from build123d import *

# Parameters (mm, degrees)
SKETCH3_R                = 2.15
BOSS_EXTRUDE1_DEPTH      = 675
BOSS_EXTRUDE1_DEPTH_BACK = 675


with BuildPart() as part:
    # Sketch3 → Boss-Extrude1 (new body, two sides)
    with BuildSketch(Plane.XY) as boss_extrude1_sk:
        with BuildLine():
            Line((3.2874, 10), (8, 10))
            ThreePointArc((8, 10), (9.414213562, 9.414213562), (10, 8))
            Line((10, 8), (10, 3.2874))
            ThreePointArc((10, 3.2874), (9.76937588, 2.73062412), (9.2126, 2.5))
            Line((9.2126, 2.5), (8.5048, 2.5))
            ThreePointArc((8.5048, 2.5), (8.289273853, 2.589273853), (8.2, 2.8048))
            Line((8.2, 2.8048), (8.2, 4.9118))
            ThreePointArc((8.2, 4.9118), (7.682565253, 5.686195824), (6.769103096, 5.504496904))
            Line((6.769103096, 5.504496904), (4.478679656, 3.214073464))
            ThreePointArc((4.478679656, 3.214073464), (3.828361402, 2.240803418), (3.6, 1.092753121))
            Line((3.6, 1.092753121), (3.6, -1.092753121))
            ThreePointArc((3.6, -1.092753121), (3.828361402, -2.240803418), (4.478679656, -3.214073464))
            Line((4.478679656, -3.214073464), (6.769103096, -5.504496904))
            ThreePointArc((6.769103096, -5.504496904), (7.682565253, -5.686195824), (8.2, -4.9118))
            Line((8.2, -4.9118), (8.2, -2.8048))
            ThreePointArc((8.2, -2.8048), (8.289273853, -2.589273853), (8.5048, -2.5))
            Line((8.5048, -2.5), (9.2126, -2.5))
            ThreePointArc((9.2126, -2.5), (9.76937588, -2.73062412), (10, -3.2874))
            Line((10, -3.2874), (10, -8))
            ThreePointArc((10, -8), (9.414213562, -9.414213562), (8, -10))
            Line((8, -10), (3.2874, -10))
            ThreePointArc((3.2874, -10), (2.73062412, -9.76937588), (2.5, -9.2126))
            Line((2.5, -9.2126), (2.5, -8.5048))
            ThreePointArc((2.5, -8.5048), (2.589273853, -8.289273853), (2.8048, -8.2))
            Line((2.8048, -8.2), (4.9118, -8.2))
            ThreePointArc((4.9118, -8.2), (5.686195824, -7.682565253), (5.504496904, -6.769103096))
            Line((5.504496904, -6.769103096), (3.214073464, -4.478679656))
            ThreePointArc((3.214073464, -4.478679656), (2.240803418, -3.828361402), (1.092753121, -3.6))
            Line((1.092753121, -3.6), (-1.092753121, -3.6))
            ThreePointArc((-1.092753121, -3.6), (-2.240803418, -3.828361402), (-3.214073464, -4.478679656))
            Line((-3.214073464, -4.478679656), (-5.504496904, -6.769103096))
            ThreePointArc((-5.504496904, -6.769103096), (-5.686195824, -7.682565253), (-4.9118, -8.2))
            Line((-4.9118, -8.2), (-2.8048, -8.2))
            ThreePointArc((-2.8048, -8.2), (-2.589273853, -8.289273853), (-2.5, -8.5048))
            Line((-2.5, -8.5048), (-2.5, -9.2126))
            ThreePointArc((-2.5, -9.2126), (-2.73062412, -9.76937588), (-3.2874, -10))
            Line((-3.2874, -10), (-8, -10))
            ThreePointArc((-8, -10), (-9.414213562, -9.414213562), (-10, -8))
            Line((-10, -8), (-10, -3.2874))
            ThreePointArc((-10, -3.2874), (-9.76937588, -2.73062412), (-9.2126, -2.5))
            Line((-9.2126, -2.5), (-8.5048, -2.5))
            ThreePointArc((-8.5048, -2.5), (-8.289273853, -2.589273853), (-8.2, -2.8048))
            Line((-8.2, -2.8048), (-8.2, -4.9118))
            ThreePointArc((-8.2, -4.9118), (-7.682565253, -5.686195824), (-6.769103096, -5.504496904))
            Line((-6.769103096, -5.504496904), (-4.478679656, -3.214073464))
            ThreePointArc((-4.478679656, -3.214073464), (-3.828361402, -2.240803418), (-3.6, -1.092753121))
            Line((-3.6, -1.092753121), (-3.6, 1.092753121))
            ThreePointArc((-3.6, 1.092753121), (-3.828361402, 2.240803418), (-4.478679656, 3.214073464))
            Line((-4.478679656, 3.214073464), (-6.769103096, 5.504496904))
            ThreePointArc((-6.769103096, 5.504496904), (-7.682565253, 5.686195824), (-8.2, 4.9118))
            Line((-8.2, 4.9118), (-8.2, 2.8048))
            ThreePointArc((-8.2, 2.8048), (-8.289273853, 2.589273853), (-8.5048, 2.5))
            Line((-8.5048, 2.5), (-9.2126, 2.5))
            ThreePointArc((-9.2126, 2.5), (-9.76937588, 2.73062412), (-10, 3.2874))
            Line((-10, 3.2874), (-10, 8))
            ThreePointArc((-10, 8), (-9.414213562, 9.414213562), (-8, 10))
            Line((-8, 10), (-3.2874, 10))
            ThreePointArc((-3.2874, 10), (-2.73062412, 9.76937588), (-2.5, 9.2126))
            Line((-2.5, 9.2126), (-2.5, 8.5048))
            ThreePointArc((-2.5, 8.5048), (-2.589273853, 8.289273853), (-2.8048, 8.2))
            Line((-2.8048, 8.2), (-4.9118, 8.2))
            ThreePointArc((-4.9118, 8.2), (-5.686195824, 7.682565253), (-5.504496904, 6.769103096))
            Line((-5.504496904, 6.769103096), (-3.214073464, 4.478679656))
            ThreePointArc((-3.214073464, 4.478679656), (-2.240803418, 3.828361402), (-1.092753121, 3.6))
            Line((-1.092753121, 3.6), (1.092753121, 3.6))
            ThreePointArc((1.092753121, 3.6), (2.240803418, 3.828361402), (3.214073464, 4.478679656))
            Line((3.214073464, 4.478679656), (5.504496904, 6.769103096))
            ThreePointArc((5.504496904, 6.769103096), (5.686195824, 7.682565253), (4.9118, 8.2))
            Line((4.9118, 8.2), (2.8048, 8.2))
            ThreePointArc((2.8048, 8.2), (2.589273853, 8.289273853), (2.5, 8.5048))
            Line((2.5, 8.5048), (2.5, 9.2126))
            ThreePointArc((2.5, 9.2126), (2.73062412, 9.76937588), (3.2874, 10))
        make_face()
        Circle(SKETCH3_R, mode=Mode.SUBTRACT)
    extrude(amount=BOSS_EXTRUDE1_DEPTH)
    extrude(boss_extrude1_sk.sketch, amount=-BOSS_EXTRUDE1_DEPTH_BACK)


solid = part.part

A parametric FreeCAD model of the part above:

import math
import FreeCAD as App
import Part
import Sketcher
from FreeCAD import Vector
Q = App.Units.Quantity

doc = App.newDocument("Part")
params = doc.addObject("Spreadsheet::Sheet", "Params")
for row, (alias, value) in enumerate([
    ("sketch1_radius", "3 mm"),
    ("sketch1_radius2", "2 mm"),
    ("sketch1_diameter", "4.3 mm"),
    ("pad1_length", "675 mm"),
    ("pad1_length2", "675 mm"),
], start=1):
    params.set(f"A{row}", alias)
    params.set(f"B{row}", "=" + value)
    params.setAlias(f"B{row}", alias)

body = doc.addObject("PartDesign::Body", "Body")

# Sketch on XY plane
sketch1 = body.newObject("Sketcher::SketchObject", "Sketch")
sketch1.AttachmentSupport = (doc.getObject("XY_Plane"), [""])
sketch1.MapMode = "FlatFace"
sketch1.addGeometry([
    Part.LineSegment(Vector(8, 10, 0), Vector(3.2874, 10, 0)),  # 0
    Part.ArcOfCircle(Part.Circle(Vector(3.2874, 9.2126, 0), Vector(0, 0, 1), 0.7874), math.radians(90), math.radians(180)),  # 1
    Part.LineSegment(Vector(2.5, 9.2126, 0), Vector(2.5, 8.5048, 0)),  # 2
    Part.ArcOfCircle(Part.Circle(Vector(2.8048, 8.5048, 0), Vector(0, 0, 1), 0.3048), math.radians(180), math.radians(270)),  # 3
    Part.LineSegment(Vector(2.8048, 8.2, 0), Vector(4.9118, 8.2, 0)),  # 4
    Part.ArcOfCircle(Part.Circle(Vector(4.9118, 7.3618, 0), Vector(0, 0, 1), 0.8382), math.radians(-45), math.radians(90)),  # 5
    Part.LineSegment(Vector(5.504497, 6.769103, 0), Vector(3.214073, 4.47868, 0)),  # 6
    Part.ArcOfCircle(Part.Circle(Vector(1.092753, 6.6, 0), Vector(0, 0, 1), 3), math.radians(-90), math.radians(-45)),  # 7
    Part.LineSegment(Vector(1.092753, 3.6, 0), Vector(-1.092753, 3.6, 0)),  # 8
    Part.ArcOfCircle(Part.Circle(Vector(-1.092753, 6.6, 0), Vector(0, 0, 1), 3), math.radians(-135), math.radians(-90)),  # 9
    Part.LineSegment(Vector(-3.214073, 4.47868, 0), Vector(-5.504497, 6.769103, 0)),  # 10
    Part.ArcOfCircle(Part.Circle(Vector(-4.9118, 7.3618, 0), Vector(0, 0, 1), 0.8382), math.radians(90), math.radians(225)),  # 11
    Part.LineSegment(Vector(-4.9118, 8.2, 0), Vector(-2.8048, 8.2, 0)),  # 12
    Part.ArcOfCircle(Part.Circle(Vector(-2.8048, 8.5048, 0), Vector(0, 0, 1), 0.3048), math.radians(-90), math.radians(0)),  # 13
    Part.LineSegment(Vector(-2.5, 8.5048, 0), Vector(-2.5, 9.2126, 0)),  # 14
    Part.ArcOfCircle(Part.Circle(Vector(-3.2874, 9.2126, 0), Vector(0, 0, 1), 0.7874), math.radians(0), math.radians(90)),  # 15
    Part.LineSegment(Vector(-3.2874, 10, 0), Vector(-8, 10, 0)),  # 16
    Part.ArcOfCircle(Part.Circle(Vector(-8, 8, 0), Vector(0, 0, 1), 2), math.radians(90), math.radians(180)),  # 17
    Part.LineSegment(Vector(-10, 8, 0), Vector(-10, 3.2874, 0)),  # 18
    Part.ArcOfCircle(Part.Circle(Vector(-9.2126, 3.2874, 0), Vector(0, 0, 1), 0.7874), math.radians(180), math.radians(270)),  # 19
    Part.LineSegment(Vector(-9.2126, 2.5, 0), Vector(-8.5048, 2.5, 0)),  # 20
    Part.ArcOfCircle(Part.Circle(Vector(-8.5048, 2.8048, 0), Vector(0, 0, 1), 0.3048), math.radians(-90), math.radians(0)),  # 21
    Part.LineSegment(Vector(-8.2, 2.8048, 0), Vector(-8.2, 4.9118, 0)),  # 22
    Part.ArcOfCircle(Part.Circle(Vector(-7.3618, 4.9118, 0), Vector(0, 0, 1), 0.8382), math.radians(45), math.radians(180)),  # 23
    Part.LineSegment(Vector(-6.769103, 5.504497, 0), Vector(-4.47868, 3.214073, 0)),  # 24
    Part.ArcOfCircle(Part.Circle(Vector(-6.6, 1.092753, 0), Vector(0, 0, 1), 3), math.radians(0), math.radians(45)),  # 25
    Part.LineSegment(Vector(-3.6, 1.092753, 0), Vector(-3.6, -1.092753, 0)),  # 26
    Part.ArcOfCircle(Part.Circle(Vector(-6.6, -1.092753, 0), Vector(0, 0, 1), 3), math.radians(-45), math.radians(0)),  # 27
    Part.LineSegment(Vector(-4.47868, -3.214073, 0), Vector(-6.769103, -5.504497, 0)),  # 28
    Part.ArcOfCircle(Part.Circle(Vector(-7.3618, -4.9118, 0), Vector(0, 0, 1), 0.8382), math.radians(180), math.radians(315)),  # 29
    Part.LineSegment(Vector(-8.2, -4.9118, 0), Vector(-8.2, -2.8048, 0)),  # 30
    Part.ArcOfCircle(Part.Circle(Vector(-8.5048, -2.8048, 0), Vector(0, 0, 1), 0.3048), math.radians(0), math.radians(90)),  # 31
    Part.LineSegment(Vector(-8.5048, -2.5, 0), Vector(-9.2126, -2.5, 0)),  # 32
    Part.ArcOfCircle(Part.Circle(Vector(-9.2126, -3.2874, 0), Vector(0, 0, 1), 0.7874), math.radians(90), math.radians(180)),  # 33
    Part.LineSegment(Vector(-10, -3.2874, 0), Vector(-10, -8, 0)),  # 34
    Part.ArcOfCircle(Part.Circle(Vector(-8, -8, 0), Vector(0, 0, 1), 2), math.radians(-180), math.radians(-90)),  # 35
    Part.LineSegment(Vector(-8, -10, 0), Vector(-3.2874, -10, 0)),  # 36
    Part.ArcOfCircle(Part.Circle(Vector(-3.2874, -9.2126, 0), Vector(0, 0, 1), 0.7874), math.radians(-90), math.radians(0)),  # 37
    Part.LineSegment(Vector(-2.5, -9.2126, 0), Vector(-2.5, -8.5048, 0)),  # 38
    Part.ArcOfCircle(Part.Circle(Vector(-2.8048, -8.5048, 0), Vector(0, 0, 1), 0.3048), math.radians(0), math.radians(90)),  # 39
    Part.LineSegment(Vector(-2.8048, -8.2, 0), Vector(-4.9118, -8.2, 0)),  # 40
    Part.ArcOfCircle(Part.Circle(Vector(-4.9118, -7.3618, 0), Vector(0, 0, 1), 0.8382), math.radians(135), math.radians(270)),  # 41
    Part.LineSegment(Vector(-5.504497, -6.769103, 0), Vector(-3.214073, -4.47868, 0)),  # 42
    Part.ArcOfCircle(Part.Circle(Vector(-1.092753, -6.6, 0), Vector(0, 0, 1), 3), math.radians(90), math.radians(135)),  # 43
    Part.LineSegment(Vector(-1.092753, -3.6, 0), Vector(1.092753, -3.6, 0)),  # 44
    Part.ArcOfCircle(Part.Circle(Vector(1.092753, -6.6, 0), Vector(0, 0, 1), 3), math.radians(45), math.radians(90)),  # 45
    Part.LineSegment(Vector(3.214073, -4.47868, 0), Vector(5.504497, -6.769103, 0)),  # 46
    Part.ArcOfCircle(Part.Circle(Vector(4.9118, -7.3618, 0), Vector(0, 0, 1), 0.8382), math.radians(-90), math.radians(45)),  # 47
    Part.LineSegment(Vector(4.9118, -8.2, 0), Vector(2.8048, -8.2, 0)),  # 48
    Part.ArcOfCircle(Part.Circle(Vector(2.8048, -8.5048, 0), Vector(0, 0, 1), 0.3048), math.radians(90), math.radians(180)),  # 49
    Part.LineSegment(Vector(2.5, -8.5048, 0), Vector(2.5, -9.2126, 0)),  # 50
    Part.ArcOfCircle(Part.Circle(Vector(3.2874, -9.2126, 0), Vector(0, 0, 1), 0.7874), math.radians(180), math.radians(270)),  # 51
    Part.LineSegment(Vector(3.2874, -10, 0), Vector(8, -10, 0)),  # 52
    Part.ArcOfCircle(Part.Circle(Vector(8, -8, 0), Vector(0, 0, 1), 2), math.radians(-90), math.radians(0)),  # 53
    Part.LineSegment(Vector(10, -8, 0), Vector(10, -3.2874, 0)),  # 54
    Part.ArcOfCircle(Part.Circle(Vector(9.2126, -3.2874, 0), Vector(0, 0, 1), 0.7874), math.radians(0), math.radians(90)),  # 55
    Part.LineSegment(Vector(9.2126, -2.5, 0), Vector(8.5048, -2.5, 0)),  # 56
    Part.ArcOfCircle(Part.Circle(Vector(8.5048, -2.8048, 0), Vector(0, 0, 1), 0.3048), math.radians(90), math.radians(180)),  # 57
    Part.LineSegment(Vector(8.2, -2.8048, 0), Vector(8.2, -4.9118, 0)),  # 58
    Part.ArcOfCircle(Part.Circle(Vector(7.3618, -4.9118, 0), Vector(0, 0, 1), 0.8382), math.radians(-135), math.radians(0)),  # 59
    Part.LineSegment(Vector(6.769103, -5.504497, 0), Vector(4.47868, -3.214073, 0)),  # 60
    Part.ArcOfCircle(Part.Circle(Vector(6.6, -1.092753, 0), Vector(0, 0, 1), 3), math.radians(180), math.radians(225)),  # 61
    Part.LineSegment(Vector(3.6, -1.092753, 0), Vector(3.6, 1.092753, 0)),  # 62
    Part.ArcOfCircle(Part.Circle(Vector(6.6, 1.092753, 0), Vector(0, 0, 1), 3), math.radians(135), math.radians(180)),  # 63
    Part.LineSegment(Vector(4.47868, 3.214073, 0), Vector(6.769103, 5.504497, 0)),  # 64
    Part.ArcOfCircle(Part.Circle(Vector(7.3618, 4.9118, 0), Vector(0, 0, 1), 0.8382), math.radians(0), math.radians(135)),  # 65
    Part.LineSegment(Vector(8.2, 4.9118, 0), Vector(8.2, 2.8048, 0)),  # 66
    Part.ArcOfCircle(Part.Circle(Vector(8.5048, 2.8048, 0), Vector(0, 0, 1), 0.3048), math.radians(180), math.radians(270)),  # 67
    Part.LineSegment(Vector(8.5048, 2.5, 0), Vector(9.2126, 2.5, 0)),  # 68
    Part.ArcOfCircle(Part.Circle(Vector(9.2126, 3.2874, 0), Vector(0, 0, 1), 0.7874), math.radians(-90), math.radians(0)),  # 69
    Part.LineSegment(Vector(10, 3.2874, 0), Vector(10, 8, 0)),  # 70
    Part.ArcOfCircle(Part.Circle(Vector(8, 8, 0), Vector(0, 0, 1), 2), math.radians(0), math.radians(90)),  # 71
    Part.Circle(Vector(0, 0, 0), Vector(0, 0, 1), 2.15),  # 72
], False)
sketch1.addConstraint([
    Sketcher.Constraint("Tangent", 0, 2, 1, 1),
    Sketcher.Constraint("Tangent", 1, 2, 2, 1),
    Sketcher.Constraint("Tangent", 2, 2, 3, 1),
    Sketcher.Constraint("Tangent", 3, 2, 4, 1),
    Sketcher.Constraint("Tangent", 4, 2, 5, 2),
    Sketcher.Constraint("Tangent", 5, 1, 6, 1),
    Sketcher.Constraint("Tangent", 6, 2, 7, 2),
    Sketcher.Constraint("Tangent", 7, 1, 8, 1),
    Sketcher.Constraint("Tangent", 8, 2, 9, 2),
    Sketcher.Constraint("Tangent", 9, 1, 10, 1),
    Sketcher.Constraint("Tangent", 10, 2, 11, 2),
    Sketcher.Constraint("Tangent", 11, 1, 12, 1),
    Sketcher.Constraint("Tangent", 12, 2, 13, 1),
    Sketcher.Constraint("Tangent", 13, 2, 14, 1),
    Sketcher.Constraint("Tangent", 14, 2, 15, 1),
    Sketcher.Constraint("Tangent", 15, 2, 16, 1),
    Sketcher.Constraint("Tangent", 16, 2, 17, 1),
    Sketcher.Constraint("Tangent", 17, 2, 18, 1),
    Sketcher.Constraint("Tangent", 18, 2, 19, 1),
    Sketcher.Constraint("Tangent", 19, 2, 20, 1),
    Sketcher.Constraint("Tangent", 20, 2, 21, 1),
    Sketcher.Constraint("Tangent", 21, 2, 22, 1),
    Sketcher.Constraint("Tangent", 22, 2, 23, 2),
    Sketcher.Constraint("Tangent", 23, 1, 24, 1),
    Sketcher.Constraint("Tangent", 24, 2, 25, 2),
    Sketcher.Constraint("Tangent", 25, 1, 26, 1),
    Sketcher.Constraint("Tangent", 26, 2, 27, 2),
    Sketcher.Constraint("Tangent", 27, 1, 28, 1),
    Sketcher.Constraint("Tangent", 28, 2, 29, 2),
    Sketcher.Constraint("Tangent", 29, 1, 30, 1),
    Sketcher.Constraint("Tangent", 30, 2, 31, 1),
    Sketcher.Constraint("Tangent", 31, 2, 32, 1),
    Sketcher.Constraint("Tangent", 32, 2, 33, 1),
    Sketcher.Constraint("Tangent", 33, 2, 34, 1),
    Sketcher.Constraint("Tangent", 34, 2, 35, 1),
    Sketcher.Constraint("Tangent", 35, 2, 36, 1),
    Sketcher.Constraint("Tangent", 36, 2, 37, 1),
    Sketcher.Constraint("Tangent", 37, 2, 38, 1),
    Sketcher.Constraint("Tangent", 38, 2, 39, 1),
    Sketcher.Constraint("Tangent", 39, 2, 40, 1),
    Sketcher.Constraint("Tangent", 40, 2, 41, 2),
    Sketcher.Constraint("Tangent", 41, 1, 42, 1),
    Sketcher.Constraint("Tangent", 42, 2, 43, 2),
    Sketcher.Constraint("Tangent", 43, 1, 44, 1),
    Sketcher.Constraint("Tangent", 44, 2, 45, 2),
    Sketcher.Constraint("Tangent", 45, 1, 46, 1),
    Sketcher.Constraint("Tangent", 46, 2, 47, 2),
    Sketcher.Constraint("Tangent", 47, 1, 48, 1),
    Sketcher.Constraint("Tangent", 48, 2, 49, 1),
    Sketcher.Constraint("Tangent", 49, 2, 50, 1),
    Sketcher.Constraint("Tangent", 50, 2, 51, 1),
    Sketcher.Constraint("Tangent", 51, 2, 52, 1),
    Sketcher.Constraint("Tangent", 52, 2, 53, 1),
    Sketcher.Constraint("Tangent", 53, 2, 54, 1),
    Sketcher.Constraint("Tangent", 54, 2, 55, 1),
    Sketcher.Constraint("Tangent", 55, 2, 56, 1),
    Sketcher.Constraint("Tangent", 56, 2, 57, 1),
    Sketcher.Constraint("Tangent", 57, 2, 58, 1),
    Sketcher.Constraint("Tangent", 58, 2, 59, 2),
    Sketcher.Constraint("Tangent", 59, 1, 60, 1),
    Sketcher.Constraint("Tangent", 60, 2, 61, 2),
    Sketcher.Constraint("Tangent", 61, 1, 62, 1),
    Sketcher.Constraint("Tangent", 62, 2, 63, 2),
    Sketcher.Constraint("Tangent", 63, 1, 64, 1),
    Sketcher.Constraint("Tangent", 64, 2, 65, 2),
    Sketcher.Constraint("Tangent", 65, 1, 66, 1),
    Sketcher.Constraint("Tangent", 66, 2, 67, 1),
    Sketcher.Constraint("Tangent", 67, 2, 68, 1),
    Sketcher.Constraint("Tangent", 68, 2, 69, 1),
    Sketcher.Constraint("Tangent", 69, 2, 70, 1),
    Sketcher.Constraint("Tangent", 70, 2, 71, 1),
    Sketcher.Constraint("Tangent", 71, 2, 0, 1),
    Sketcher.Constraint("Horizontal", 0),
    Sketcher.Constraint("Vertical", 2),
    Sketcher.Constraint("Horizontal", 4),
    Sketcher.Constraint("Horizontal", 8),
    Sketcher.Constraint("Horizontal", 12),
    Sketcher.Constraint("Vertical", 14),
    Sketcher.Constraint("Horizontal", 16),
    Sketcher.Constraint("Vertical", 18),
    Sketcher.Constraint("Horizontal", 20),
    Sketcher.Constraint("Vertical", 22),
    Sketcher.Constraint("Vertical", 26),
    Sketcher.Constraint("Vertical", 30),
    Sketcher.Constraint("Horizontal", 32),
    Sketcher.Constraint("Vertical", 34),
    Sketcher.Constraint("Horizontal", 36),
    Sketcher.Constraint("Vertical", 38),
    Sketcher.Constraint("Horizontal", 40),
    Sketcher.Constraint("Horizontal", 44),
    Sketcher.Constraint("Horizontal", 48),
    Sketcher.Constraint("Vertical", 50),
    Sketcher.Constraint("Horizontal", 52),
    Sketcher.Constraint("Vertical", 54),
    Sketcher.Constraint("Horizontal", 56),
    Sketcher.Constraint("Vertical", 58),
    Sketcher.Constraint("Vertical", 62),
    Sketcher.Constraint("Vertical", 66),
    Sketcher.Constraint("Horizontal", 68),
    Sketcher.Constraint("Vertical", 70),
    Sketcher.Constraint("Coincident", 72, 3, -1, 1),
    Sketcher.Constraint("Equal", 7, 9),
    Sketcher.Constraint("Equal", 5, 11),
    Sketcher.Constraint("Equal", 3, 13),
    Sketcher.Constraint("Equal", 1, 15),
    Sketcher.Constraint("Equal", 15, 19),
    Sketcher.Constraint("Equal", 13, 21),
    Sketcher.Constraint("Equal", 11, 23),
    Sketcher.Constraint("Equal", 9, 25),
    Sketcher.Constraint("Equal", 25, 27),
    Sketcher.Constraint("Equal", 23, 29),
    Sketcher.Constraint("Equal", 21, 31),
    Sketcher.Constraint("Equal", 19, 33),
    Sketcher.Constraint("Equal", 17, 35),
    Sketcher.Constraint("Equal", 33, 37),
    Sketcher.Constraint("Equal", 31, 39),
    Sketcher.Constraint("Equal", 29, 41),
    Sketcher.Constraint("Equal", 27, 43),
    Sketcher.Constraint("Equal", 43, 45),
    Sketcher.Constraint("Equal", 41, 47),
    Sketcher.Constraint("Equal", 39, 49),
    Sketcher.Constraint("Equal", 37, 51),
    Sketcher.Constraint("Equal", 35, 53),
    Sketcher.Constraint("Equal", 51, 55),
    Sketcher.Constraint("Equal", 49, 57),
    Sketcher.Constraint("Equal", 47, 59),
    Sketcher.Constraint("Equal", 45, 61),
    Sketcher.Constraint("Equal", 61, 63),
    Sketcher.Constraint("Equal", 59, 65),
    Sketcher.Constraint("Equal", 57, 67),
    Sketcher.Constraint("Equal", 55, 69),
    Sketcher.Constraint("Equal", 53, 71),
    Sketcher.Constraint("Symmetric", 1, 3, 37, 3, -1, 1),
    Sketcher.Constraint("Symmetric", 5, 3, 41, 3, -1, 1),
    Sketcher.Constraint("Symmetric", 7, 3, 43, 3, -1, 1),
    Sketcher.Constraint("Symmetric", 11, 3, 47, 3, -1, 1),
    Sketcher.Constraint("Symmetric", 15, 3, 51, 3, -1, 1),
    Sketcher.Constraint("Symmetric", 19, 3, 55, 3, -1, 1),
    Sketcher.Constraint("Symmetric", 23, 3, 59, 3, -1, 1),
    Sketcher.Constraint("Symmetric", 25, 3, 61, 3, -1, 1),
    Sketcher.Constraint("Symmetric", 29, 3, 65, 3, -1, 1),
    Sketcher.Constraint("Symmetric", 33, 3, 69, 3, -1, 1),
    Sketcher.Constraint("Symmetric", 5, 3, 11, 3, -2),
    Sketcher.Constraint("Symmetric", 1, 3, 15, 3, -2),
    Sketcher.Constraint("Symmetric", 33, 3, 55, 3, -2),
    Sketcher.Constraint("Symmetric", 29, 3, 59, 3, -2),
    Sketcher.Constraint("Perpendicular", 6, 10),
    Sketcher.Constraint("Parallel", 10, 24),
    Sketcher.Constraint("Perpendicular", 24, 28),
    Sketcher.Constraint("Perpendicular", 42, 46),
    Sketcher.Constraint("Perpendicular", 60, 64),
    Sketcher.Constraint("Horizontal", 27, 3, 61, 3),
    Sketcher.Constraint("Equal", 68, 2),
    Sketcher.Constraint("Equal", 52, 18),
    Sketcher.Constraint("Equal", 48, 22),
    Sketcher.Constraint("Equal", 44, 26),
    Sketcher.Constraint("Equal", 10, 24),
    Sketcher.Constraint("Radius", 7, Q("3 mm")),
    Sketcher.Constraint("Radius", 17, Q("2 mm")),
    Sketcher.Constraint("Diameter", 72, Q("4.3 mm")),
    Sketcher.Constraint("DistanceX", 17, 3, -1, 1, Q("8 mm")),
    Sketcher.Constraint("DistanceY", -1, 1, 7, 3, Q("6.6 mm")),
    Sketcher.Constraint("DistanceX", -1, 1, 1, 2, Q("2.5 mm")),
    Sketcher.Constraint("DistanceY", -1, 1, 3, 2, Q("8.2 mm")),
    Sketcher.Constraint("Radius", 1, Q("0.7874 mm")),
    Sketcher.Constraint("Radius", 3, Q("0.3048 mm")),
    Sketcher.Constraint("Radius", 5, Q("0.8382 mm")),
    Sketcher.Constraint("DistanceX", 4, 1, 4, 2, Q("2.107 mm")),
])
sketch1.setExpression("Constraints[157]", "Params.sketch1_radius")
sketch1.setExpression("Constraints[158]", "Params.sketch1_radius2")
sketch1.setExpression("Constraints[159]", "Params.sketch1_diameter")
pad1 = body.newObject("PartDesign::Pad", "Pad")
pad1.Profile = sketch1
pad1.Type = "TwoLengths"
pad1.setExpression("Length", "Params.pad1_length")
pad1.setExpression("Length2", "Params.pad1_length2")

doc.recompute()
